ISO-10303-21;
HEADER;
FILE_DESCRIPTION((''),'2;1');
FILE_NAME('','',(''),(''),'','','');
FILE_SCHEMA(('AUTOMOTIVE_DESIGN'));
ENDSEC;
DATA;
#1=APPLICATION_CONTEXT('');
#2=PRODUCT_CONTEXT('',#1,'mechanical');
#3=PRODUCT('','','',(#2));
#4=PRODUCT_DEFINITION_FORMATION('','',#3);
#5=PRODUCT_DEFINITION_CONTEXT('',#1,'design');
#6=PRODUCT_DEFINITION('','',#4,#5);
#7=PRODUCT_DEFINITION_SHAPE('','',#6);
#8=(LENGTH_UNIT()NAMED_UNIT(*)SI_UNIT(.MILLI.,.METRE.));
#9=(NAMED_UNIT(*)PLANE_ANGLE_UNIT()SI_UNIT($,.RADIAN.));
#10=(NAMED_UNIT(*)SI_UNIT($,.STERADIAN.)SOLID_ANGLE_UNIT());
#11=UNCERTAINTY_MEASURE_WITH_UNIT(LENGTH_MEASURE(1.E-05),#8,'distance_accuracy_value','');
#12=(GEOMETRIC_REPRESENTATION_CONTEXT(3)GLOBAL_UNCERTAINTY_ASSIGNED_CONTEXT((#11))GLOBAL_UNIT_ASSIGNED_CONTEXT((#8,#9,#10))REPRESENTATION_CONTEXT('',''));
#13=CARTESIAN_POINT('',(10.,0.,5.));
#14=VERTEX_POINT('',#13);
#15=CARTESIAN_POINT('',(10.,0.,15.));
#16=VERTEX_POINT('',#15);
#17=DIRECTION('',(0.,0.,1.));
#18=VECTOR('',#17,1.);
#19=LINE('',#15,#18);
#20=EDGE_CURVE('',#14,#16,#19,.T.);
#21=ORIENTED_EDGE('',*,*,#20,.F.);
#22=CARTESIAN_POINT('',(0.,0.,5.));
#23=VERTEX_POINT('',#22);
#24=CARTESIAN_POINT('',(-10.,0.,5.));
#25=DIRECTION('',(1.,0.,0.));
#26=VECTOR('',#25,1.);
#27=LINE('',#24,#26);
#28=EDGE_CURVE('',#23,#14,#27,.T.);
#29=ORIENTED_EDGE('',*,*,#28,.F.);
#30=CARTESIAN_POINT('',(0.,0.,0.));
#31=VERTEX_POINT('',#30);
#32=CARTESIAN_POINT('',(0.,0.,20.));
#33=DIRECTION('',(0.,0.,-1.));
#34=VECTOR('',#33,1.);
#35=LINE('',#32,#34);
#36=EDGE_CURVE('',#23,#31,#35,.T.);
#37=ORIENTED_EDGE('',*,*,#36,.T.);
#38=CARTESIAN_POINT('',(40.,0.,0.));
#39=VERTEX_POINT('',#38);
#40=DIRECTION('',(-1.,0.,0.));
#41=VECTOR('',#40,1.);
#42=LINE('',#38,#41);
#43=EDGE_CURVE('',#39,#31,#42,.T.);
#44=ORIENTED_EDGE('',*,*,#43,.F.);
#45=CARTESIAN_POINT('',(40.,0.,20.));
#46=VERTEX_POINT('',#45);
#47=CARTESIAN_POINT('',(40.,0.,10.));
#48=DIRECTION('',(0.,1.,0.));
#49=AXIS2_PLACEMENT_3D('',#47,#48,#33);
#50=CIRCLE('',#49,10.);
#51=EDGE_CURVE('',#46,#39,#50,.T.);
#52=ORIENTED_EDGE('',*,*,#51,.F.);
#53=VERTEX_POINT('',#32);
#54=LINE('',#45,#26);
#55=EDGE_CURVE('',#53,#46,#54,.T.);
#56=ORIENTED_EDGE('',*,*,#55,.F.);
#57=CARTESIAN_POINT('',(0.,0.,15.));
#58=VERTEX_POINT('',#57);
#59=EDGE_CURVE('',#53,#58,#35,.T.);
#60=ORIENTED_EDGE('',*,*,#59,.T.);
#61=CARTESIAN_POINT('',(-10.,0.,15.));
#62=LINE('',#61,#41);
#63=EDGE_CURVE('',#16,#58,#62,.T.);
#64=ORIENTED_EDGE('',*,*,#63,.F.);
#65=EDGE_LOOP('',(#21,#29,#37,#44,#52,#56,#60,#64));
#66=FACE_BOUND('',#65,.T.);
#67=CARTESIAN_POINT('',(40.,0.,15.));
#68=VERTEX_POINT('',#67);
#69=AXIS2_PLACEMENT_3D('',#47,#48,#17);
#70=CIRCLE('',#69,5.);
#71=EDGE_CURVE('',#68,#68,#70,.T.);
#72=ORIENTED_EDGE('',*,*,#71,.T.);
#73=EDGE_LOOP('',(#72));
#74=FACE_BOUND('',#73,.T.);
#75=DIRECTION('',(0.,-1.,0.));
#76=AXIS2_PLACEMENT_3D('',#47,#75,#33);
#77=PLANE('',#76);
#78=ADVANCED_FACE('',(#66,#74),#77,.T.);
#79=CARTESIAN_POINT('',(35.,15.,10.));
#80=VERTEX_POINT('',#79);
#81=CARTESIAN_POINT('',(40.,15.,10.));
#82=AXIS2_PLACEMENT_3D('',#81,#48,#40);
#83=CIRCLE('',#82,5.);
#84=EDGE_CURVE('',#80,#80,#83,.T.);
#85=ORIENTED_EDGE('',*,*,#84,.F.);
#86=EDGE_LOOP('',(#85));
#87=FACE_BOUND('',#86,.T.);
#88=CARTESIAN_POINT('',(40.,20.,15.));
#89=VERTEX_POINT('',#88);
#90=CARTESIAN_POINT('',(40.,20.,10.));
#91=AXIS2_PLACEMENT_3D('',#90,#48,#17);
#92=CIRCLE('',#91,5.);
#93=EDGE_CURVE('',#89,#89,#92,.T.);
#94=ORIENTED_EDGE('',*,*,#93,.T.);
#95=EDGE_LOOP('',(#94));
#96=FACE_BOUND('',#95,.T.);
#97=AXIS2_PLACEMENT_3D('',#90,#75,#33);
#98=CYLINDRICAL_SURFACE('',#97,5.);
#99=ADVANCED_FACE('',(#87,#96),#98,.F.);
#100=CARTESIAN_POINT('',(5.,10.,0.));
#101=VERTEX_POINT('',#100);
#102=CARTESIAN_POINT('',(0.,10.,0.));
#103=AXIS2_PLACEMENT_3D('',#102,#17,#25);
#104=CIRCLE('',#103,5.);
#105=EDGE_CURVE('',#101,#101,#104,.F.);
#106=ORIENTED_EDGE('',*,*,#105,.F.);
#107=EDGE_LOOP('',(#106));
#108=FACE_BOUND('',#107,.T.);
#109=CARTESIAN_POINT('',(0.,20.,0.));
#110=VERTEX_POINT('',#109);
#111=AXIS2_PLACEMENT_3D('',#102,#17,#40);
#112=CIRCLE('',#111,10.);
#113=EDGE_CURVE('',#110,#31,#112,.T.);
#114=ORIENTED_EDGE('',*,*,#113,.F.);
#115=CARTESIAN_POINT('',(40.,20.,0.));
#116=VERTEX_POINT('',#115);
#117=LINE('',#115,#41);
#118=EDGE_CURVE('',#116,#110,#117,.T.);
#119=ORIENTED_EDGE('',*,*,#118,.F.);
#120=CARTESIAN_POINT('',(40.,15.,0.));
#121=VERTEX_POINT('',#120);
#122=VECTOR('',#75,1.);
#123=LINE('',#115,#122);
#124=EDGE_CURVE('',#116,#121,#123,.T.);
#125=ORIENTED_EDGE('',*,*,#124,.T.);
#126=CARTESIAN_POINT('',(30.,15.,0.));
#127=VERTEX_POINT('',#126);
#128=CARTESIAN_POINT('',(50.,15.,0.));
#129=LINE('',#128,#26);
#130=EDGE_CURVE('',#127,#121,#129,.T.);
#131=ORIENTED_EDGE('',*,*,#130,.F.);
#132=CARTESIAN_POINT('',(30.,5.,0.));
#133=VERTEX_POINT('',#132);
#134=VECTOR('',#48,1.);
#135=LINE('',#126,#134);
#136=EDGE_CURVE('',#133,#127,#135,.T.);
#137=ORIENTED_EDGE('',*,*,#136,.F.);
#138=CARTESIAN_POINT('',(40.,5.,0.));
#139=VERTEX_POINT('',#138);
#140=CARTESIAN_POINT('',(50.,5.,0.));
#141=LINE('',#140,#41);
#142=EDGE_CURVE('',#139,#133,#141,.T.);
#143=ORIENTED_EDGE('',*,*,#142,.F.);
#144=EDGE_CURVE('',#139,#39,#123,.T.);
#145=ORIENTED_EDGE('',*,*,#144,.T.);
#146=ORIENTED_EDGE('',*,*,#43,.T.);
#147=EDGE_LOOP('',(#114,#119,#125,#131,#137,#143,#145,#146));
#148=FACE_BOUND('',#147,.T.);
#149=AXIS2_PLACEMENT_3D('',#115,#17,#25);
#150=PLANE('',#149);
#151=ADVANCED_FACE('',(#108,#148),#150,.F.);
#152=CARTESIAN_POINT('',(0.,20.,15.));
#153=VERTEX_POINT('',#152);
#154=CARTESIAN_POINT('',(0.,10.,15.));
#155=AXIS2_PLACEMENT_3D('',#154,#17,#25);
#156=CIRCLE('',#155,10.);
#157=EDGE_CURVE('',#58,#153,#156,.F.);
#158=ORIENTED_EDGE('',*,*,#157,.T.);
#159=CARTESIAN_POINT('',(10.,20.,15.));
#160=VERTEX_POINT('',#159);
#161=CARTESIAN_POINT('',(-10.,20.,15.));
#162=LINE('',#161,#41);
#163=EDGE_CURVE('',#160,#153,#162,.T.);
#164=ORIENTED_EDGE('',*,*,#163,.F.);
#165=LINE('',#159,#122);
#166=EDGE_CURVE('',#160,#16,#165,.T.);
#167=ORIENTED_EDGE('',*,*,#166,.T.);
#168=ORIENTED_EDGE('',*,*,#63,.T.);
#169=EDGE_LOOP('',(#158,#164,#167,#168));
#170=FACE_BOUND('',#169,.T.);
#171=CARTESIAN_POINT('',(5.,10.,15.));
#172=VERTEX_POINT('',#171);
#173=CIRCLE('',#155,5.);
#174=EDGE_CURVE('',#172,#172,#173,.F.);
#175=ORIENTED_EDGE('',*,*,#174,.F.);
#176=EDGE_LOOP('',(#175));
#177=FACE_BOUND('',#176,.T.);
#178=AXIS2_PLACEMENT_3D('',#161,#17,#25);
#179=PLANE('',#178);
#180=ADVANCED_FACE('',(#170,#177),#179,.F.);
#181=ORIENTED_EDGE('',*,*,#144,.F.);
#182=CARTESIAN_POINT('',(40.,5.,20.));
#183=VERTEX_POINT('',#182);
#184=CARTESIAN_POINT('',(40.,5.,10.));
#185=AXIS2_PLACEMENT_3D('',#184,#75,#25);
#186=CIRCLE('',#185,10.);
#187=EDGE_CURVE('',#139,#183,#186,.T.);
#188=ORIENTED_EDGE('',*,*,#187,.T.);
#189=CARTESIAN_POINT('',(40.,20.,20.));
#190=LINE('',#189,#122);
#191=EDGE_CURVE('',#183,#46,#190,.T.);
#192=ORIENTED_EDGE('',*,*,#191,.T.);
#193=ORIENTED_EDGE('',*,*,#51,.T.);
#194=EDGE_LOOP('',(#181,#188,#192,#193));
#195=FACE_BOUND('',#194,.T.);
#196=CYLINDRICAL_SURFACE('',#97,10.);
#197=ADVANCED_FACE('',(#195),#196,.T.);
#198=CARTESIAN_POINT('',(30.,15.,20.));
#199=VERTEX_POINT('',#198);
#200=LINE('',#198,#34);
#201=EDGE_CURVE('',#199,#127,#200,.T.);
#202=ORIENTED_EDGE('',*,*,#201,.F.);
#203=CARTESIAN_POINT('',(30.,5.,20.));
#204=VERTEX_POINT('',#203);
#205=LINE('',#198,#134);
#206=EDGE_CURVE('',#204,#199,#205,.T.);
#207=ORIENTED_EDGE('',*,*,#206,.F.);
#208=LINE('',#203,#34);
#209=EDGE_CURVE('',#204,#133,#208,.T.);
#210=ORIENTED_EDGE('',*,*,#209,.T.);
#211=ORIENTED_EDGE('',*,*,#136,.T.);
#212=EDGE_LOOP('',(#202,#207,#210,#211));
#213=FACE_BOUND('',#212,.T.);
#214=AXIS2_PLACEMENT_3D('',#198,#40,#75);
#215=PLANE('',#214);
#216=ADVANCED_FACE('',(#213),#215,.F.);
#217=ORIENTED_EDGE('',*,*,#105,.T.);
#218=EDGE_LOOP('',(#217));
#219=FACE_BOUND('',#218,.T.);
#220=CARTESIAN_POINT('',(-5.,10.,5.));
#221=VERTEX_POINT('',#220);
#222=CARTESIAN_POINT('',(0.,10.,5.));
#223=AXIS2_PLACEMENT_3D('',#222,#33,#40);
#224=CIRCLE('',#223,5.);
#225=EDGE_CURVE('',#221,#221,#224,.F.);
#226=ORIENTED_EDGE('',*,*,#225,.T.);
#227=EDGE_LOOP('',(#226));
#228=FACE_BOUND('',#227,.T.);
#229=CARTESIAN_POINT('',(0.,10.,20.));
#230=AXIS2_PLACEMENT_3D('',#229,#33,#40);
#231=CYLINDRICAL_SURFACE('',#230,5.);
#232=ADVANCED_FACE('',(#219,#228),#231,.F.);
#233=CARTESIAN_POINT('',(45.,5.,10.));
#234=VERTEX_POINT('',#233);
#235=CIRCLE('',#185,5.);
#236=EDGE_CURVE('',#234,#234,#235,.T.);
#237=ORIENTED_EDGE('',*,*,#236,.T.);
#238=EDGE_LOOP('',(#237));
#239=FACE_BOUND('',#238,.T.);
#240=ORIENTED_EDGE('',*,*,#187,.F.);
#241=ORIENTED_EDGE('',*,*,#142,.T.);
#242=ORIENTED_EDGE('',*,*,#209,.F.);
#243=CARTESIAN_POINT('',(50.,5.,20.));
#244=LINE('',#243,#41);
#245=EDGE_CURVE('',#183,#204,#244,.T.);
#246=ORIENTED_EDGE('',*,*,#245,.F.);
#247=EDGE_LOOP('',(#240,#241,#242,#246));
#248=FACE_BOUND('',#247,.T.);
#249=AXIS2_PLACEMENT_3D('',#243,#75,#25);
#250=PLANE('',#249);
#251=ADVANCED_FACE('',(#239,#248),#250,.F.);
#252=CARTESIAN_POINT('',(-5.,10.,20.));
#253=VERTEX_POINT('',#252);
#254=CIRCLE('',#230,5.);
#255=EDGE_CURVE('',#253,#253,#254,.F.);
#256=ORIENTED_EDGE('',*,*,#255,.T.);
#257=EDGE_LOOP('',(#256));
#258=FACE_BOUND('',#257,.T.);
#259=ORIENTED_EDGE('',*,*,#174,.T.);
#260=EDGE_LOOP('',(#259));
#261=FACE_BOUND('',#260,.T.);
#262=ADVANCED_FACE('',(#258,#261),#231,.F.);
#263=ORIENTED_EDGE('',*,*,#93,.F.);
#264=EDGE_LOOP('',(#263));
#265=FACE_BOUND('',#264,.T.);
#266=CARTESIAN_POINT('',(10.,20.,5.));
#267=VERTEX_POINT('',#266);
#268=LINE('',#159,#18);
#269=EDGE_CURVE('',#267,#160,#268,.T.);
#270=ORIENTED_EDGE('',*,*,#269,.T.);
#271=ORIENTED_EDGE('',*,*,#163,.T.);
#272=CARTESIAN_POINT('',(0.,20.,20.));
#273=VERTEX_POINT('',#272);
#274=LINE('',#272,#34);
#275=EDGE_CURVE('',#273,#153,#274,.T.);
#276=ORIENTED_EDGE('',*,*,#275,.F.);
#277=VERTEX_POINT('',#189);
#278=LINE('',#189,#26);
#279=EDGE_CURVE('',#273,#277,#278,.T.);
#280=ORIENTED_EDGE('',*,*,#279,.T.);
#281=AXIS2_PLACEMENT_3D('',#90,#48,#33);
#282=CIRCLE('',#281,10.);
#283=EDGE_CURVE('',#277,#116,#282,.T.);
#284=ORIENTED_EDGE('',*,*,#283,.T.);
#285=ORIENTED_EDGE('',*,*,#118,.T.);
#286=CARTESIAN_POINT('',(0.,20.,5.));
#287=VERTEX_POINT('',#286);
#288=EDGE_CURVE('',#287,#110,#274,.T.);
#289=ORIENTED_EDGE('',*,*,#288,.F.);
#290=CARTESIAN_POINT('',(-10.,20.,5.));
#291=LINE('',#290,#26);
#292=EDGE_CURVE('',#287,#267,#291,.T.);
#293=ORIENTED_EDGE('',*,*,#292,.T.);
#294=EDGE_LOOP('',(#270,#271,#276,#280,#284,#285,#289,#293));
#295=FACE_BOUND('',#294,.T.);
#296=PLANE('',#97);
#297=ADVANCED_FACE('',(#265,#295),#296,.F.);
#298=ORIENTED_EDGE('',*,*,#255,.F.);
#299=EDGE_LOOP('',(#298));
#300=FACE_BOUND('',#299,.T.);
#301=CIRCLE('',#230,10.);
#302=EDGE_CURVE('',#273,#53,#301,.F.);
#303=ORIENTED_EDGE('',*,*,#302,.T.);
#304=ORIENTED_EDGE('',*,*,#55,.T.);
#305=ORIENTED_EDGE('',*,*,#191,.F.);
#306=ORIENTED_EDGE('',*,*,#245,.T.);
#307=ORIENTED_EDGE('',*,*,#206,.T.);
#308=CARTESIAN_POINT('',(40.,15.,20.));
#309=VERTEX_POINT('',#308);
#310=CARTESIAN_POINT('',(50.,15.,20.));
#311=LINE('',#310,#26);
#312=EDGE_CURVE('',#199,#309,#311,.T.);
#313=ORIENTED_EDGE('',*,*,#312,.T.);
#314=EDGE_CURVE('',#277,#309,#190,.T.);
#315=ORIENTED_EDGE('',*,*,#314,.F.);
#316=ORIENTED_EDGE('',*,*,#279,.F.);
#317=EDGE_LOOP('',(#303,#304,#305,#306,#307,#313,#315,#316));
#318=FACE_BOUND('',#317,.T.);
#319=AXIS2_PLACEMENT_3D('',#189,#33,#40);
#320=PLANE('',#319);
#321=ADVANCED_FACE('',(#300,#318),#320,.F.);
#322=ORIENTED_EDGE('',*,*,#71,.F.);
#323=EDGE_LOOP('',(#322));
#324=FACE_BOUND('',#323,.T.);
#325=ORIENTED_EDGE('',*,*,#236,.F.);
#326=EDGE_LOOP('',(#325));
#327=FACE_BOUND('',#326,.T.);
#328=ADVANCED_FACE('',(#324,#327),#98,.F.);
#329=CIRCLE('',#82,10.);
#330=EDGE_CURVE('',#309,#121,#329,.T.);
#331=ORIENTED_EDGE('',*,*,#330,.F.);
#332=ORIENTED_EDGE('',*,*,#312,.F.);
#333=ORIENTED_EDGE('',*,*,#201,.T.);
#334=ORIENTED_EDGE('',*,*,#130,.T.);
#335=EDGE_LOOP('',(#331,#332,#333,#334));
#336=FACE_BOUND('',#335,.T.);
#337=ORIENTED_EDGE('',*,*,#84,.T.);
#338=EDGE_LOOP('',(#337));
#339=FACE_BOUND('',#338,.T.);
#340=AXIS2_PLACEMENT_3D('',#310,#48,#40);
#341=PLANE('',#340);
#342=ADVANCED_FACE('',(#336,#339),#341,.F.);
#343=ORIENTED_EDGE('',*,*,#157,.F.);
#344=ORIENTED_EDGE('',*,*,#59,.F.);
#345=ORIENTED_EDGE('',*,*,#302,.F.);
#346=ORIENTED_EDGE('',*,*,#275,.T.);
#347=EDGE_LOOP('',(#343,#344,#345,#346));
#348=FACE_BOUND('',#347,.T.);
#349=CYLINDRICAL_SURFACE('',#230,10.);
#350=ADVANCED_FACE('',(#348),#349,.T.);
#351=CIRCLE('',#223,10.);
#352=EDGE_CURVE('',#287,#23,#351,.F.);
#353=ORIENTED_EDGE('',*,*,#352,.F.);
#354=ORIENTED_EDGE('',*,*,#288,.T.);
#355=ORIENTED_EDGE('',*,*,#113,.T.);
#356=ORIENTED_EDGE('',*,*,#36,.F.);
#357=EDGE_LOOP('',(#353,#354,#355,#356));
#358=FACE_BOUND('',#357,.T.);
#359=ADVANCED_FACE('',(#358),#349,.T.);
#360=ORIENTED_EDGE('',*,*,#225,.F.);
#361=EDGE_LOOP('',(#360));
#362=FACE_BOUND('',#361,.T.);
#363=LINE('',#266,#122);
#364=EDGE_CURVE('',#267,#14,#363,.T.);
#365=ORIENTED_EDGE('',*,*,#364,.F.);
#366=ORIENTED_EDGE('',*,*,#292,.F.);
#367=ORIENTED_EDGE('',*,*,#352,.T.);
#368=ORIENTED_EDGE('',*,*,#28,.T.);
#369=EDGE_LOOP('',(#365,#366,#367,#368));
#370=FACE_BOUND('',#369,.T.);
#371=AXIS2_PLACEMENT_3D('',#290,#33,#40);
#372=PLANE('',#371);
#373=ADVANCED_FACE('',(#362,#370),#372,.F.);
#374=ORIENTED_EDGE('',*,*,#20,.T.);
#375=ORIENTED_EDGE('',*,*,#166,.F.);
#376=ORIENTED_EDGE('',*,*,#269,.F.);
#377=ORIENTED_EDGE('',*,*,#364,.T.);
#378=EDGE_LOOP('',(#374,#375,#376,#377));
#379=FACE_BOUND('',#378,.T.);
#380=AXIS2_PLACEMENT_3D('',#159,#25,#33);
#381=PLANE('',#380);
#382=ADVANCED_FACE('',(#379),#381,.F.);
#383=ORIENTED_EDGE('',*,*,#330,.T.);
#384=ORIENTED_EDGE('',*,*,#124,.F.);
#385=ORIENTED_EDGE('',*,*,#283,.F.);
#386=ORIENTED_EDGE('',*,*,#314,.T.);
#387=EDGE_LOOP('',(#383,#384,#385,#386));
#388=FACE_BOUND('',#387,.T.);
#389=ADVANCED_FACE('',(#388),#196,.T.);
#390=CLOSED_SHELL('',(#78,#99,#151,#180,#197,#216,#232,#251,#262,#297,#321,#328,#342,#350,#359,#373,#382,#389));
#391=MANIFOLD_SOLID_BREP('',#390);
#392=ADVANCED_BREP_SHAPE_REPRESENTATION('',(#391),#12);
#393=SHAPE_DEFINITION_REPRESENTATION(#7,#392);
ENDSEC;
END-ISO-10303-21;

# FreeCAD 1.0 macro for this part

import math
import FreeCAD as App
import Part
import Sketcher
from FreeCAD import Vector

doc = App.newDocument("Part")
body = doc.addObject("PartDesign::Body", "Body")

sketch1 = body.newObject("Sketcher::SketchObject", "Sketch")
sketch1.AttachmentSupport = (doc.getObject("XY_Plane"), [""])
sketch1.MapMode = "FlatFace"
sketch1.addGeometry([
    Part.LineSegment(Vector(0, 0, 0), Vector(50, 0, 0)),
    Part.LineSegment(Vector(50, 0, 0), Vector(50, 5, 0)),
    Part.LineSegment(Vector(50, 5, 0), Vector(30, 5, 0)),
    Part.LineSegment(Vector(30, 5, 0), Vector(30, 15, 0)),
    Part.LineSegment(Vector(30, 15, 0), Vector(50, 15, 0)),
    Part.LineSegment(Vector(50, 15, 0), Vector(50, 20, 0)),
    Part.LineSegment(Vector(50, 20, 0), Vector(0, 20, 0)),
    Part.ArcOfCircle(Part.Circle(Vector(0, 10, 0), Vector(0, 0, 1), 10), math.radians(90), math.radians(270)),
    Part.Circle(Vector(0, 10, 0), Vector(0, 0, 1), 5),
], False)
sketch1.addConstraint([
    Sketcher.Constraint("Coincident", 0, 2, 1, 1),
    Sketcher.Constraint("Coincident", 1, 2, 2, 1),
    Sketcher.Constraint("Coincident", 2, 2, 3, 1),
    Sketcher.Constraint("Coincident", 3, 2, 4, 1),
    Sketcher.Constraint("Coincident", 4, 2, 5, 1),
    Sketcher.Constraint("Coincident", 5, 2, 6, 1),
    Sketcher.Constraint("Tangent", 6, 2, 7, 1),
    Sketcher.Constraint("Tangent", 7, 2, 0, 1),
    Sketcher.Constraint("Horizontal", 0),
    Sketcher.Constraint("Vertical", 1),
    Sketcher.Constraint("Horizontal", 2),
    Sketcher.Constraint("Vertical", 3),
    Sketcher.Constraint("Horizontal", 4),
    Sketcher.Constraint("Vertical", 5),
    Sketcher.Constraint("Horizontal", 6),
    Sketcher.Constraint("Coincident", 7, 2, -1, 1),
    Sketcher.Constraint("Coincident", 8, 3, 7, 3),
    Sketcher.Constraint("Vertical", 1, 2, 4, 2),
    Sketcher.Constraint("Equal", 1, 5),
    Sketcher.Constraint("Diameter", 8, 10.0),
    Sketcher.Constraint("Radius", 7, 10.0),
    Sketcher.Constraint("DistanceX", 0, 1, 0, 2, 50.0),
    Sketcher.Constraint("DistanceX", 2, 2, 2, 1, 20.0),
    Sketcher.Constraint("DistanceY", 1, 1, 1, 2, 5.0),
])
pad1 = body.newObject("PartDesign::Pad", "Pad")
pad1.Profile = sketch1
pad1.Length = 20
body2 = doc.addObject("PartDesign::Body", "Body001")

sketch2 = body2.newObject("Sketcher::SketchObject", "Sketch001")
sketch2.AttachmentSupport = (doc.getObject("XZ_Plane001"), [""])
sketch2.MapMode = "FlatFace"
sketch2.addGeometry([
    Part.LineSegment(Vector(40, 0, 0), Vector(-10, 0, 0)),
    Part.LineSegment(Vector(-10, 0, 0), Vector(-10, 5, 0)),
    Part.LineSegment(Vector(-10, 5, 0), Vector(10, 5, 0)),
    Part.LineSegment(Vector(10, 5, 0), Vector(10, 15, 0)),
    Part.LineSegment(Vector(10, 15, 0), Vector(-10, 15, 0)),
    Part.LineSegment(Vector(-10, 15, 0), Vector(-10, 20, 0)),
    Part.LineSegment(Vector(-10, 20, 0), Vector(40, 20, 0)),
    Part.ArcOfCircle(Part.Circle(Vector(40, 10, 0), Vector(0, 0, 1), 10), math.radians(-90), math.radians(90)),
    Part.Circle(Vector(40, 10, 0), Vector(0, 0, 1), 5),
], False)
sketch2.addConstraint([
    Sketcher.Constraint("Coincident", 0, 2, 1, 1),
    Sketcher.Constraint("Coincident", 1, 2, 2, 1),
    Sketcher.Constraint("Coincident", 2, 2, 3, 1),
    Sketcher.Constraint("Coincident", 3, 2, 4, 1),
    Sketcher.Constraint("Coincident", 4, 2, 5, 1),
    Sketcher.Constraint("Coincident", 5, 2, 6, 1),
    Sketcher.Constraint("Tangent", 6, 2, 7, 2),
    Sketcher.Constraint("Tangent", 7, 1, 0, 1),
    Sketcher.Constraint("Horizontal", 0),
    Sketcher.Constraint("Vertical", 1),
    Sketcher.Constraint("Horizontal", 2),
    Sketcher.Constraint("Vertical", 3),
    Sketcher.Constraint("Horizontal", 4),
    Sketcher.Constraint("Vertical", 5),
    Sketcher.Constraint("Horizontal", 6),
    Sketcher.Constraint("Coincident", 8, 3, 7, 3),
    Sketcher.Constraint("PointOnObject", 0, 2, -1),
    Sketcher.Constraint("Vertical", 1, 2, 4, 2),
    Sketcher.Constraint("Equal", 1, 5),
    Sketcher.Constraint("Diameter", 8, 10.0),
    Sketcher.Constraint("Radius", 7, 10.0),
    Sketcher.Constraint("DistanceX", 0, 2, 0, 1, 50.0),
    Sketcher.Constraint("DistanceX", 2, 1, 2, 2, 20.0),
    Sketcher.Constraint("DistanceY", 1, 1, 1, 2, 5.0),
    Sketcher.Constraint("DistanceX", -1, 1, 7, 3, 40.0),
])
pad2 = body2.newObject("PartDesign::Pad", "Pad001")
pad2.Profile = sketch2
pad2.Length = 20
pad2.Reversed = True
doc.recompute()

boolean = body2.newObject("PartDesign::Boolean", "Boolean")
boolean.Type = "Common"
boolean.addObjects([body])

doc.recompute()
